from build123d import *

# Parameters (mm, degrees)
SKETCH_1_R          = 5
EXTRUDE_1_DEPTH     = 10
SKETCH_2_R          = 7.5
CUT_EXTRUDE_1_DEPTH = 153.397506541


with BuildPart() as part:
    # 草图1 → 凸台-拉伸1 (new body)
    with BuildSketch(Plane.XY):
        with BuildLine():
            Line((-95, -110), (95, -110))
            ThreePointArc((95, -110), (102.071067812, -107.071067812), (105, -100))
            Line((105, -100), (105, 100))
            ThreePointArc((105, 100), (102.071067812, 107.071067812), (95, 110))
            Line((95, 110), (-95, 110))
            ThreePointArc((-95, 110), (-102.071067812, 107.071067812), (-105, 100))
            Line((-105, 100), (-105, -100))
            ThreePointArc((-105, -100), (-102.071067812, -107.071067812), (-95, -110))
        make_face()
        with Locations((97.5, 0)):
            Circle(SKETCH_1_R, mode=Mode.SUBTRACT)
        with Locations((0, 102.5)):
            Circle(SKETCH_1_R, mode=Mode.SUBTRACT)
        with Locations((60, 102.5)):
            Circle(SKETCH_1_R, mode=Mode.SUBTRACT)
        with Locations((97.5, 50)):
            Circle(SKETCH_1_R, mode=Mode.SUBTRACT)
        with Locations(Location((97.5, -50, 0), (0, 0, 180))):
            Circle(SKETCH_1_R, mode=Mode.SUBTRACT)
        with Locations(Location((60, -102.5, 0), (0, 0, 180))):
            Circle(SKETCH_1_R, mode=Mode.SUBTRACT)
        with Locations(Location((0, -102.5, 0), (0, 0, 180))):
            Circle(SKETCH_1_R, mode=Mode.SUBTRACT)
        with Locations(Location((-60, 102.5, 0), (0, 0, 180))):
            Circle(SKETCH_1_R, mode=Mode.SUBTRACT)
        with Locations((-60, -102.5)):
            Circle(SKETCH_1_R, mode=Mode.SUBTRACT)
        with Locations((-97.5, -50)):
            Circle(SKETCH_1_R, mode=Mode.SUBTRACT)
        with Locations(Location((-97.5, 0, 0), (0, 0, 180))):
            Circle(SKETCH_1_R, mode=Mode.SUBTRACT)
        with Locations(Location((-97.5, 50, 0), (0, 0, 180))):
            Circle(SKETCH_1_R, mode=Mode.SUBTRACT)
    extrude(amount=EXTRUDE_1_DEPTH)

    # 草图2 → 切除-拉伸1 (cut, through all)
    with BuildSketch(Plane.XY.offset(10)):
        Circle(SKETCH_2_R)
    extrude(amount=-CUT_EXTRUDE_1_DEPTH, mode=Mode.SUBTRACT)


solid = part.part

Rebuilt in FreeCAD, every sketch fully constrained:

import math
import FreeCAD as App
import Part
import Sketcher

V = App.Vector

doc = App.newDocument("Part")
body = doc.addObject("PartDesign::Body", "Body")

# Sketch on XY plane
sketch1 = body.newObject("Sketcher::SketchObject", "Sketch")
sketch1.AttachmentSupport = (doc.getObject("XY_Plane"), [""])
sketch1.MapMode = "FlatFace"
sketch1.addGeometry(Part.LineSegment(V(-95, -110, 0), V(95, -110, 0)), False)
sketch1.addGeometry(Part.ArcOfCircle(Part.Circle(V(95, -100, 0), V(0, 0, 1), 10), math.radians(-90), math.radians(0)), False)
sketch1.addGeometry(Part.LineSegment(V(105, -100, 0), V(105, 100, 0)), False)
sketch1.addGeometry(Part.ArcOfCircle(Part.Circle(V(95, 100, 0), V(0, 0, 1), 10), math.radians(0), math.radians(90)), False)
sketch1.addGeometry(Part.LineSegment(V(95, 110, 0), V(-95, 110, 0)), False)
sketch1.addGeometry(Part.ArcOfCircle(Part.Circle(V(-95, 100, 0), V(0, 0, 1), 10), math.radians(90), math.radians(180)), False)
sketch1.addGeometry(Part.LineSegment(V(-105, 100, 0), V(-105, -100, 0)), False)
sketch1.addGeometry(Part.ArcOfCircle(Part.Circle(V(-95, -100, 0), V(0, 0, 1), 10), math.radians(180), math.radians(270)), False)
sketch1.addGeometry(Part.Circle(V(-60, -102, 0), V(0, 0, 1), 5), False)
sketch1.addGeometry(Part.Circle(V(-98, -50, 0), V(0, 0, 1), 5), False)
sketch1.addGeometry(Part.Circle(V(0, -102, 0), V(0, 0, 1), 5), False)
sketch1.addGeometry(Part.Circle(V(60, -102, 0), V(0, 0, 1), 5), False)
sketch1.addGeometry(Part.Circle(V(98, -50, 0), V(0, 0, 1), 5), False)
sketch1.addGeometry(Part.Circle(V(-98, 0, 0), V(0, 0, 1), 5), False)
sketch1.addGeometry(Part.Circle(V(-98, 50, 0), V(0, 0, 1), 5), False)
sketch1.addGeometry(Part.Circle(V(-60, 102, 0), V(0, 0, 1), 5), False)
sketch1.addGeometry(Part.Circle(V(98, 0, 0), V(0, 0, 1), 5), False)
sketch1.addGeometry(Part.Circle(V(98, 50, 0), V(0, 0, 1), 5), False)
sketch1.addGeometry(Part.Circle(V(0, 102, 0), V(0, 0, 1), 5), False)
sketch1.addGeometry(Part.Circle(V(60, 102, 0), V(0, 0, 1), 5), False)
sketch1.addConstraint(Sketcher.Constraint("Tangent", 0, 2, 1, 1))
sketch1.addConstraint(Sketcher.Constraint("Tangent", 1, 2, 2, 1))
sketch1.addConstraint(Sketcher.Constraint("Tangent", 2, 2, 3, 1))
sketch1.addConstraint(Sketcher.Constraint("Tangent", 3, 2, 4, 1))
sketch1.addConstraint(Sketcher.Constraint("Tangent", 4, 2, 5, 1))
sketch1.addConstraint(Sketcher.Constraint("Tangent", 5, 2, 6, 1))
sketch1.addConstraint(Sketcher.Constraint("Tangent", 6, 2, 7, 1))
sketch1.addConstraint(Sketcher.Constraint("Tangent", 7, 2, 0, 1))
sketch1.addConstraint(Sketcher.Constraint("Horizontal", 0))
sketch1.addConstraint(Sketcher.Constraint("Vertical", 2))
sketch1.addConstraint(Sketcher.Constraint("Horizontal", 4))
sketch1.addConstraint(Sketcher.Constraint("Vertical", 6))
sketch1.addConstraint(Sketcher.Constraint("Equal", 1, 3))
sketch1.addConstraint(Sketcher.Constraint("Equal", 3, 5))
sketch1.addConstraint(Sketcher.Constraint("Equal", 5, 7))
sketch1.addConstraint(Sketcher.Constraint("Equal", 8, 9))
sketch1.addConstraint(Sketcher.Constraint("Equal", 9, 10))
sketch1.addConstraint(Sketcher.Constraint("Equal", 10, 11))
sketch1.addConstraint(Sketcher.Constraint("Equal", 11, 12))
sketch1.addConstraint(Sketcher.Constraint("Equal", 12, 13))
sketch1.addConstraint(Sketcher.Constraint("Equal", 13, 14))
sketch1.addConstraint(Sketcher.Constraint("Equal", 14, 15))
sketch1.addConstraint(Sketcher.Constraint("Equal", 15, 16))
sketch1.addConstraint(Sketcher.Constraint("Equal", 16, 17))
sketch1.addConstraint(Sketcher.Constraint("Equal", 17, 18))
sketch1.addConstraint(Sketcher.Constraint("Equal", 18, 19))
sketch1.addConstraint(Sketcher.Constraint("Symmetric", 1, 3, 5, 3, -1, 1))
sketch1.addConstraint(Sketcher.Constraint("Symmetric", 12, 3, 14, 3, -1, 1))
sketch1.addConstraint(Sketcher.Constraint("Symmetric", 11, 3, 15, 3, -1, 1))
sketch1.addConstraint(Sketcher.Constraint("Symmetric", 13, 3, 16, 3, -1, 1))
sketch1.addConstraint(Sketcher.Constraint("Symmetric", 9, 3, 17, 3, -1, 1))
sketch1.addConstraint(Sketcher.Constraint("Symmetric", 10, 3, 18, 3, -1, 1))
sketch1.addConstraint(Sketcher.Constraint("Symmetric", 8, 3, 19, 3, -1, 1))
sketch1.addConstraint(Sketcher.Constraint("Symmetric", 8, 3, 11, 3, -2))
sketch1.addConstraint(Sketcher.Constraint("Symmetric", 9, 3, 12, 3, -2))
sketch1.addConstraint(Sketcher.Constraint("PointOnObject", 10, 3, -2))
sketch1.addConstraint(Sketcher.Constraint("PointOnObject", 13, 3, -1))
sketch1.addConstraint(Sketcher.Constraint("Horizontal", 8, 3, 10, 3))
sketch1.addConstraint(Sketcher.Constraint("Vertical", 9, 3, 13, 3))
sketch1.addConstraint(Sketcher.Constraint("Diameter", 8, 10.0))
sketch1.addConstraint(Sketcher.Constraint("Radius", 1, 10.0))
sketch1.addConstraint(Sketcher.Constraint("DistanceX", 0, 1, 0, 2, 190.0))
sketch1.addConstraint(Sketcher.Constraint("DistanceY", 2, 1, 2, 2, 200.0))
sketch1.addConstraint(Sketcher.Constraint("DistanceX", 8, 3, -1, 1, 60.0))
sketch1.addConstraint(Sketcher.Constraint("DistanceY", 9, 3, -1, 1, 50.0))
sketch1.addConstraint(Sketcher.Constraint("DistanceY", 8, 3, -1, 1, 102.5))
sketch1.addConstraint(Sketcher.Constraint("DistanceX", 9, 3, -1, 1, 97.5))
pad1 = body.newObject("PartDesign::Pad", "Pad")
pad1.Profile = sketch1
pad1.Length = 10

# Sketch on XY plane
sketch2 = body.newObject("Sketcher::SketchObject", "Sketch001")
sketch2.AttachmentSupport = (doc.getObject("XY_Plane"), [""])
sketch2.MapMode = "FlatFace"
sketch2.AttachmentOffset = App.Placement(V(0, 0, 10), App.Rotation())
sketch2.addGeometry(Part.Circle(V(0, 0, 0), V(0, 0, 1), 8), False)
sketch2.addConstraint(Sketcher.Constraint("Coincident", 0, 3, -1, 1))
sketch2.addConstraint(Sketcher.Constraint("Diameter", 0, 15.0))
pocket1 = body.newObject("PartDesign::Pocket", "Pocket")
pocket1.Profile = sketch2
pocket1.Type = "ThroughAll"

doc.recompute()
